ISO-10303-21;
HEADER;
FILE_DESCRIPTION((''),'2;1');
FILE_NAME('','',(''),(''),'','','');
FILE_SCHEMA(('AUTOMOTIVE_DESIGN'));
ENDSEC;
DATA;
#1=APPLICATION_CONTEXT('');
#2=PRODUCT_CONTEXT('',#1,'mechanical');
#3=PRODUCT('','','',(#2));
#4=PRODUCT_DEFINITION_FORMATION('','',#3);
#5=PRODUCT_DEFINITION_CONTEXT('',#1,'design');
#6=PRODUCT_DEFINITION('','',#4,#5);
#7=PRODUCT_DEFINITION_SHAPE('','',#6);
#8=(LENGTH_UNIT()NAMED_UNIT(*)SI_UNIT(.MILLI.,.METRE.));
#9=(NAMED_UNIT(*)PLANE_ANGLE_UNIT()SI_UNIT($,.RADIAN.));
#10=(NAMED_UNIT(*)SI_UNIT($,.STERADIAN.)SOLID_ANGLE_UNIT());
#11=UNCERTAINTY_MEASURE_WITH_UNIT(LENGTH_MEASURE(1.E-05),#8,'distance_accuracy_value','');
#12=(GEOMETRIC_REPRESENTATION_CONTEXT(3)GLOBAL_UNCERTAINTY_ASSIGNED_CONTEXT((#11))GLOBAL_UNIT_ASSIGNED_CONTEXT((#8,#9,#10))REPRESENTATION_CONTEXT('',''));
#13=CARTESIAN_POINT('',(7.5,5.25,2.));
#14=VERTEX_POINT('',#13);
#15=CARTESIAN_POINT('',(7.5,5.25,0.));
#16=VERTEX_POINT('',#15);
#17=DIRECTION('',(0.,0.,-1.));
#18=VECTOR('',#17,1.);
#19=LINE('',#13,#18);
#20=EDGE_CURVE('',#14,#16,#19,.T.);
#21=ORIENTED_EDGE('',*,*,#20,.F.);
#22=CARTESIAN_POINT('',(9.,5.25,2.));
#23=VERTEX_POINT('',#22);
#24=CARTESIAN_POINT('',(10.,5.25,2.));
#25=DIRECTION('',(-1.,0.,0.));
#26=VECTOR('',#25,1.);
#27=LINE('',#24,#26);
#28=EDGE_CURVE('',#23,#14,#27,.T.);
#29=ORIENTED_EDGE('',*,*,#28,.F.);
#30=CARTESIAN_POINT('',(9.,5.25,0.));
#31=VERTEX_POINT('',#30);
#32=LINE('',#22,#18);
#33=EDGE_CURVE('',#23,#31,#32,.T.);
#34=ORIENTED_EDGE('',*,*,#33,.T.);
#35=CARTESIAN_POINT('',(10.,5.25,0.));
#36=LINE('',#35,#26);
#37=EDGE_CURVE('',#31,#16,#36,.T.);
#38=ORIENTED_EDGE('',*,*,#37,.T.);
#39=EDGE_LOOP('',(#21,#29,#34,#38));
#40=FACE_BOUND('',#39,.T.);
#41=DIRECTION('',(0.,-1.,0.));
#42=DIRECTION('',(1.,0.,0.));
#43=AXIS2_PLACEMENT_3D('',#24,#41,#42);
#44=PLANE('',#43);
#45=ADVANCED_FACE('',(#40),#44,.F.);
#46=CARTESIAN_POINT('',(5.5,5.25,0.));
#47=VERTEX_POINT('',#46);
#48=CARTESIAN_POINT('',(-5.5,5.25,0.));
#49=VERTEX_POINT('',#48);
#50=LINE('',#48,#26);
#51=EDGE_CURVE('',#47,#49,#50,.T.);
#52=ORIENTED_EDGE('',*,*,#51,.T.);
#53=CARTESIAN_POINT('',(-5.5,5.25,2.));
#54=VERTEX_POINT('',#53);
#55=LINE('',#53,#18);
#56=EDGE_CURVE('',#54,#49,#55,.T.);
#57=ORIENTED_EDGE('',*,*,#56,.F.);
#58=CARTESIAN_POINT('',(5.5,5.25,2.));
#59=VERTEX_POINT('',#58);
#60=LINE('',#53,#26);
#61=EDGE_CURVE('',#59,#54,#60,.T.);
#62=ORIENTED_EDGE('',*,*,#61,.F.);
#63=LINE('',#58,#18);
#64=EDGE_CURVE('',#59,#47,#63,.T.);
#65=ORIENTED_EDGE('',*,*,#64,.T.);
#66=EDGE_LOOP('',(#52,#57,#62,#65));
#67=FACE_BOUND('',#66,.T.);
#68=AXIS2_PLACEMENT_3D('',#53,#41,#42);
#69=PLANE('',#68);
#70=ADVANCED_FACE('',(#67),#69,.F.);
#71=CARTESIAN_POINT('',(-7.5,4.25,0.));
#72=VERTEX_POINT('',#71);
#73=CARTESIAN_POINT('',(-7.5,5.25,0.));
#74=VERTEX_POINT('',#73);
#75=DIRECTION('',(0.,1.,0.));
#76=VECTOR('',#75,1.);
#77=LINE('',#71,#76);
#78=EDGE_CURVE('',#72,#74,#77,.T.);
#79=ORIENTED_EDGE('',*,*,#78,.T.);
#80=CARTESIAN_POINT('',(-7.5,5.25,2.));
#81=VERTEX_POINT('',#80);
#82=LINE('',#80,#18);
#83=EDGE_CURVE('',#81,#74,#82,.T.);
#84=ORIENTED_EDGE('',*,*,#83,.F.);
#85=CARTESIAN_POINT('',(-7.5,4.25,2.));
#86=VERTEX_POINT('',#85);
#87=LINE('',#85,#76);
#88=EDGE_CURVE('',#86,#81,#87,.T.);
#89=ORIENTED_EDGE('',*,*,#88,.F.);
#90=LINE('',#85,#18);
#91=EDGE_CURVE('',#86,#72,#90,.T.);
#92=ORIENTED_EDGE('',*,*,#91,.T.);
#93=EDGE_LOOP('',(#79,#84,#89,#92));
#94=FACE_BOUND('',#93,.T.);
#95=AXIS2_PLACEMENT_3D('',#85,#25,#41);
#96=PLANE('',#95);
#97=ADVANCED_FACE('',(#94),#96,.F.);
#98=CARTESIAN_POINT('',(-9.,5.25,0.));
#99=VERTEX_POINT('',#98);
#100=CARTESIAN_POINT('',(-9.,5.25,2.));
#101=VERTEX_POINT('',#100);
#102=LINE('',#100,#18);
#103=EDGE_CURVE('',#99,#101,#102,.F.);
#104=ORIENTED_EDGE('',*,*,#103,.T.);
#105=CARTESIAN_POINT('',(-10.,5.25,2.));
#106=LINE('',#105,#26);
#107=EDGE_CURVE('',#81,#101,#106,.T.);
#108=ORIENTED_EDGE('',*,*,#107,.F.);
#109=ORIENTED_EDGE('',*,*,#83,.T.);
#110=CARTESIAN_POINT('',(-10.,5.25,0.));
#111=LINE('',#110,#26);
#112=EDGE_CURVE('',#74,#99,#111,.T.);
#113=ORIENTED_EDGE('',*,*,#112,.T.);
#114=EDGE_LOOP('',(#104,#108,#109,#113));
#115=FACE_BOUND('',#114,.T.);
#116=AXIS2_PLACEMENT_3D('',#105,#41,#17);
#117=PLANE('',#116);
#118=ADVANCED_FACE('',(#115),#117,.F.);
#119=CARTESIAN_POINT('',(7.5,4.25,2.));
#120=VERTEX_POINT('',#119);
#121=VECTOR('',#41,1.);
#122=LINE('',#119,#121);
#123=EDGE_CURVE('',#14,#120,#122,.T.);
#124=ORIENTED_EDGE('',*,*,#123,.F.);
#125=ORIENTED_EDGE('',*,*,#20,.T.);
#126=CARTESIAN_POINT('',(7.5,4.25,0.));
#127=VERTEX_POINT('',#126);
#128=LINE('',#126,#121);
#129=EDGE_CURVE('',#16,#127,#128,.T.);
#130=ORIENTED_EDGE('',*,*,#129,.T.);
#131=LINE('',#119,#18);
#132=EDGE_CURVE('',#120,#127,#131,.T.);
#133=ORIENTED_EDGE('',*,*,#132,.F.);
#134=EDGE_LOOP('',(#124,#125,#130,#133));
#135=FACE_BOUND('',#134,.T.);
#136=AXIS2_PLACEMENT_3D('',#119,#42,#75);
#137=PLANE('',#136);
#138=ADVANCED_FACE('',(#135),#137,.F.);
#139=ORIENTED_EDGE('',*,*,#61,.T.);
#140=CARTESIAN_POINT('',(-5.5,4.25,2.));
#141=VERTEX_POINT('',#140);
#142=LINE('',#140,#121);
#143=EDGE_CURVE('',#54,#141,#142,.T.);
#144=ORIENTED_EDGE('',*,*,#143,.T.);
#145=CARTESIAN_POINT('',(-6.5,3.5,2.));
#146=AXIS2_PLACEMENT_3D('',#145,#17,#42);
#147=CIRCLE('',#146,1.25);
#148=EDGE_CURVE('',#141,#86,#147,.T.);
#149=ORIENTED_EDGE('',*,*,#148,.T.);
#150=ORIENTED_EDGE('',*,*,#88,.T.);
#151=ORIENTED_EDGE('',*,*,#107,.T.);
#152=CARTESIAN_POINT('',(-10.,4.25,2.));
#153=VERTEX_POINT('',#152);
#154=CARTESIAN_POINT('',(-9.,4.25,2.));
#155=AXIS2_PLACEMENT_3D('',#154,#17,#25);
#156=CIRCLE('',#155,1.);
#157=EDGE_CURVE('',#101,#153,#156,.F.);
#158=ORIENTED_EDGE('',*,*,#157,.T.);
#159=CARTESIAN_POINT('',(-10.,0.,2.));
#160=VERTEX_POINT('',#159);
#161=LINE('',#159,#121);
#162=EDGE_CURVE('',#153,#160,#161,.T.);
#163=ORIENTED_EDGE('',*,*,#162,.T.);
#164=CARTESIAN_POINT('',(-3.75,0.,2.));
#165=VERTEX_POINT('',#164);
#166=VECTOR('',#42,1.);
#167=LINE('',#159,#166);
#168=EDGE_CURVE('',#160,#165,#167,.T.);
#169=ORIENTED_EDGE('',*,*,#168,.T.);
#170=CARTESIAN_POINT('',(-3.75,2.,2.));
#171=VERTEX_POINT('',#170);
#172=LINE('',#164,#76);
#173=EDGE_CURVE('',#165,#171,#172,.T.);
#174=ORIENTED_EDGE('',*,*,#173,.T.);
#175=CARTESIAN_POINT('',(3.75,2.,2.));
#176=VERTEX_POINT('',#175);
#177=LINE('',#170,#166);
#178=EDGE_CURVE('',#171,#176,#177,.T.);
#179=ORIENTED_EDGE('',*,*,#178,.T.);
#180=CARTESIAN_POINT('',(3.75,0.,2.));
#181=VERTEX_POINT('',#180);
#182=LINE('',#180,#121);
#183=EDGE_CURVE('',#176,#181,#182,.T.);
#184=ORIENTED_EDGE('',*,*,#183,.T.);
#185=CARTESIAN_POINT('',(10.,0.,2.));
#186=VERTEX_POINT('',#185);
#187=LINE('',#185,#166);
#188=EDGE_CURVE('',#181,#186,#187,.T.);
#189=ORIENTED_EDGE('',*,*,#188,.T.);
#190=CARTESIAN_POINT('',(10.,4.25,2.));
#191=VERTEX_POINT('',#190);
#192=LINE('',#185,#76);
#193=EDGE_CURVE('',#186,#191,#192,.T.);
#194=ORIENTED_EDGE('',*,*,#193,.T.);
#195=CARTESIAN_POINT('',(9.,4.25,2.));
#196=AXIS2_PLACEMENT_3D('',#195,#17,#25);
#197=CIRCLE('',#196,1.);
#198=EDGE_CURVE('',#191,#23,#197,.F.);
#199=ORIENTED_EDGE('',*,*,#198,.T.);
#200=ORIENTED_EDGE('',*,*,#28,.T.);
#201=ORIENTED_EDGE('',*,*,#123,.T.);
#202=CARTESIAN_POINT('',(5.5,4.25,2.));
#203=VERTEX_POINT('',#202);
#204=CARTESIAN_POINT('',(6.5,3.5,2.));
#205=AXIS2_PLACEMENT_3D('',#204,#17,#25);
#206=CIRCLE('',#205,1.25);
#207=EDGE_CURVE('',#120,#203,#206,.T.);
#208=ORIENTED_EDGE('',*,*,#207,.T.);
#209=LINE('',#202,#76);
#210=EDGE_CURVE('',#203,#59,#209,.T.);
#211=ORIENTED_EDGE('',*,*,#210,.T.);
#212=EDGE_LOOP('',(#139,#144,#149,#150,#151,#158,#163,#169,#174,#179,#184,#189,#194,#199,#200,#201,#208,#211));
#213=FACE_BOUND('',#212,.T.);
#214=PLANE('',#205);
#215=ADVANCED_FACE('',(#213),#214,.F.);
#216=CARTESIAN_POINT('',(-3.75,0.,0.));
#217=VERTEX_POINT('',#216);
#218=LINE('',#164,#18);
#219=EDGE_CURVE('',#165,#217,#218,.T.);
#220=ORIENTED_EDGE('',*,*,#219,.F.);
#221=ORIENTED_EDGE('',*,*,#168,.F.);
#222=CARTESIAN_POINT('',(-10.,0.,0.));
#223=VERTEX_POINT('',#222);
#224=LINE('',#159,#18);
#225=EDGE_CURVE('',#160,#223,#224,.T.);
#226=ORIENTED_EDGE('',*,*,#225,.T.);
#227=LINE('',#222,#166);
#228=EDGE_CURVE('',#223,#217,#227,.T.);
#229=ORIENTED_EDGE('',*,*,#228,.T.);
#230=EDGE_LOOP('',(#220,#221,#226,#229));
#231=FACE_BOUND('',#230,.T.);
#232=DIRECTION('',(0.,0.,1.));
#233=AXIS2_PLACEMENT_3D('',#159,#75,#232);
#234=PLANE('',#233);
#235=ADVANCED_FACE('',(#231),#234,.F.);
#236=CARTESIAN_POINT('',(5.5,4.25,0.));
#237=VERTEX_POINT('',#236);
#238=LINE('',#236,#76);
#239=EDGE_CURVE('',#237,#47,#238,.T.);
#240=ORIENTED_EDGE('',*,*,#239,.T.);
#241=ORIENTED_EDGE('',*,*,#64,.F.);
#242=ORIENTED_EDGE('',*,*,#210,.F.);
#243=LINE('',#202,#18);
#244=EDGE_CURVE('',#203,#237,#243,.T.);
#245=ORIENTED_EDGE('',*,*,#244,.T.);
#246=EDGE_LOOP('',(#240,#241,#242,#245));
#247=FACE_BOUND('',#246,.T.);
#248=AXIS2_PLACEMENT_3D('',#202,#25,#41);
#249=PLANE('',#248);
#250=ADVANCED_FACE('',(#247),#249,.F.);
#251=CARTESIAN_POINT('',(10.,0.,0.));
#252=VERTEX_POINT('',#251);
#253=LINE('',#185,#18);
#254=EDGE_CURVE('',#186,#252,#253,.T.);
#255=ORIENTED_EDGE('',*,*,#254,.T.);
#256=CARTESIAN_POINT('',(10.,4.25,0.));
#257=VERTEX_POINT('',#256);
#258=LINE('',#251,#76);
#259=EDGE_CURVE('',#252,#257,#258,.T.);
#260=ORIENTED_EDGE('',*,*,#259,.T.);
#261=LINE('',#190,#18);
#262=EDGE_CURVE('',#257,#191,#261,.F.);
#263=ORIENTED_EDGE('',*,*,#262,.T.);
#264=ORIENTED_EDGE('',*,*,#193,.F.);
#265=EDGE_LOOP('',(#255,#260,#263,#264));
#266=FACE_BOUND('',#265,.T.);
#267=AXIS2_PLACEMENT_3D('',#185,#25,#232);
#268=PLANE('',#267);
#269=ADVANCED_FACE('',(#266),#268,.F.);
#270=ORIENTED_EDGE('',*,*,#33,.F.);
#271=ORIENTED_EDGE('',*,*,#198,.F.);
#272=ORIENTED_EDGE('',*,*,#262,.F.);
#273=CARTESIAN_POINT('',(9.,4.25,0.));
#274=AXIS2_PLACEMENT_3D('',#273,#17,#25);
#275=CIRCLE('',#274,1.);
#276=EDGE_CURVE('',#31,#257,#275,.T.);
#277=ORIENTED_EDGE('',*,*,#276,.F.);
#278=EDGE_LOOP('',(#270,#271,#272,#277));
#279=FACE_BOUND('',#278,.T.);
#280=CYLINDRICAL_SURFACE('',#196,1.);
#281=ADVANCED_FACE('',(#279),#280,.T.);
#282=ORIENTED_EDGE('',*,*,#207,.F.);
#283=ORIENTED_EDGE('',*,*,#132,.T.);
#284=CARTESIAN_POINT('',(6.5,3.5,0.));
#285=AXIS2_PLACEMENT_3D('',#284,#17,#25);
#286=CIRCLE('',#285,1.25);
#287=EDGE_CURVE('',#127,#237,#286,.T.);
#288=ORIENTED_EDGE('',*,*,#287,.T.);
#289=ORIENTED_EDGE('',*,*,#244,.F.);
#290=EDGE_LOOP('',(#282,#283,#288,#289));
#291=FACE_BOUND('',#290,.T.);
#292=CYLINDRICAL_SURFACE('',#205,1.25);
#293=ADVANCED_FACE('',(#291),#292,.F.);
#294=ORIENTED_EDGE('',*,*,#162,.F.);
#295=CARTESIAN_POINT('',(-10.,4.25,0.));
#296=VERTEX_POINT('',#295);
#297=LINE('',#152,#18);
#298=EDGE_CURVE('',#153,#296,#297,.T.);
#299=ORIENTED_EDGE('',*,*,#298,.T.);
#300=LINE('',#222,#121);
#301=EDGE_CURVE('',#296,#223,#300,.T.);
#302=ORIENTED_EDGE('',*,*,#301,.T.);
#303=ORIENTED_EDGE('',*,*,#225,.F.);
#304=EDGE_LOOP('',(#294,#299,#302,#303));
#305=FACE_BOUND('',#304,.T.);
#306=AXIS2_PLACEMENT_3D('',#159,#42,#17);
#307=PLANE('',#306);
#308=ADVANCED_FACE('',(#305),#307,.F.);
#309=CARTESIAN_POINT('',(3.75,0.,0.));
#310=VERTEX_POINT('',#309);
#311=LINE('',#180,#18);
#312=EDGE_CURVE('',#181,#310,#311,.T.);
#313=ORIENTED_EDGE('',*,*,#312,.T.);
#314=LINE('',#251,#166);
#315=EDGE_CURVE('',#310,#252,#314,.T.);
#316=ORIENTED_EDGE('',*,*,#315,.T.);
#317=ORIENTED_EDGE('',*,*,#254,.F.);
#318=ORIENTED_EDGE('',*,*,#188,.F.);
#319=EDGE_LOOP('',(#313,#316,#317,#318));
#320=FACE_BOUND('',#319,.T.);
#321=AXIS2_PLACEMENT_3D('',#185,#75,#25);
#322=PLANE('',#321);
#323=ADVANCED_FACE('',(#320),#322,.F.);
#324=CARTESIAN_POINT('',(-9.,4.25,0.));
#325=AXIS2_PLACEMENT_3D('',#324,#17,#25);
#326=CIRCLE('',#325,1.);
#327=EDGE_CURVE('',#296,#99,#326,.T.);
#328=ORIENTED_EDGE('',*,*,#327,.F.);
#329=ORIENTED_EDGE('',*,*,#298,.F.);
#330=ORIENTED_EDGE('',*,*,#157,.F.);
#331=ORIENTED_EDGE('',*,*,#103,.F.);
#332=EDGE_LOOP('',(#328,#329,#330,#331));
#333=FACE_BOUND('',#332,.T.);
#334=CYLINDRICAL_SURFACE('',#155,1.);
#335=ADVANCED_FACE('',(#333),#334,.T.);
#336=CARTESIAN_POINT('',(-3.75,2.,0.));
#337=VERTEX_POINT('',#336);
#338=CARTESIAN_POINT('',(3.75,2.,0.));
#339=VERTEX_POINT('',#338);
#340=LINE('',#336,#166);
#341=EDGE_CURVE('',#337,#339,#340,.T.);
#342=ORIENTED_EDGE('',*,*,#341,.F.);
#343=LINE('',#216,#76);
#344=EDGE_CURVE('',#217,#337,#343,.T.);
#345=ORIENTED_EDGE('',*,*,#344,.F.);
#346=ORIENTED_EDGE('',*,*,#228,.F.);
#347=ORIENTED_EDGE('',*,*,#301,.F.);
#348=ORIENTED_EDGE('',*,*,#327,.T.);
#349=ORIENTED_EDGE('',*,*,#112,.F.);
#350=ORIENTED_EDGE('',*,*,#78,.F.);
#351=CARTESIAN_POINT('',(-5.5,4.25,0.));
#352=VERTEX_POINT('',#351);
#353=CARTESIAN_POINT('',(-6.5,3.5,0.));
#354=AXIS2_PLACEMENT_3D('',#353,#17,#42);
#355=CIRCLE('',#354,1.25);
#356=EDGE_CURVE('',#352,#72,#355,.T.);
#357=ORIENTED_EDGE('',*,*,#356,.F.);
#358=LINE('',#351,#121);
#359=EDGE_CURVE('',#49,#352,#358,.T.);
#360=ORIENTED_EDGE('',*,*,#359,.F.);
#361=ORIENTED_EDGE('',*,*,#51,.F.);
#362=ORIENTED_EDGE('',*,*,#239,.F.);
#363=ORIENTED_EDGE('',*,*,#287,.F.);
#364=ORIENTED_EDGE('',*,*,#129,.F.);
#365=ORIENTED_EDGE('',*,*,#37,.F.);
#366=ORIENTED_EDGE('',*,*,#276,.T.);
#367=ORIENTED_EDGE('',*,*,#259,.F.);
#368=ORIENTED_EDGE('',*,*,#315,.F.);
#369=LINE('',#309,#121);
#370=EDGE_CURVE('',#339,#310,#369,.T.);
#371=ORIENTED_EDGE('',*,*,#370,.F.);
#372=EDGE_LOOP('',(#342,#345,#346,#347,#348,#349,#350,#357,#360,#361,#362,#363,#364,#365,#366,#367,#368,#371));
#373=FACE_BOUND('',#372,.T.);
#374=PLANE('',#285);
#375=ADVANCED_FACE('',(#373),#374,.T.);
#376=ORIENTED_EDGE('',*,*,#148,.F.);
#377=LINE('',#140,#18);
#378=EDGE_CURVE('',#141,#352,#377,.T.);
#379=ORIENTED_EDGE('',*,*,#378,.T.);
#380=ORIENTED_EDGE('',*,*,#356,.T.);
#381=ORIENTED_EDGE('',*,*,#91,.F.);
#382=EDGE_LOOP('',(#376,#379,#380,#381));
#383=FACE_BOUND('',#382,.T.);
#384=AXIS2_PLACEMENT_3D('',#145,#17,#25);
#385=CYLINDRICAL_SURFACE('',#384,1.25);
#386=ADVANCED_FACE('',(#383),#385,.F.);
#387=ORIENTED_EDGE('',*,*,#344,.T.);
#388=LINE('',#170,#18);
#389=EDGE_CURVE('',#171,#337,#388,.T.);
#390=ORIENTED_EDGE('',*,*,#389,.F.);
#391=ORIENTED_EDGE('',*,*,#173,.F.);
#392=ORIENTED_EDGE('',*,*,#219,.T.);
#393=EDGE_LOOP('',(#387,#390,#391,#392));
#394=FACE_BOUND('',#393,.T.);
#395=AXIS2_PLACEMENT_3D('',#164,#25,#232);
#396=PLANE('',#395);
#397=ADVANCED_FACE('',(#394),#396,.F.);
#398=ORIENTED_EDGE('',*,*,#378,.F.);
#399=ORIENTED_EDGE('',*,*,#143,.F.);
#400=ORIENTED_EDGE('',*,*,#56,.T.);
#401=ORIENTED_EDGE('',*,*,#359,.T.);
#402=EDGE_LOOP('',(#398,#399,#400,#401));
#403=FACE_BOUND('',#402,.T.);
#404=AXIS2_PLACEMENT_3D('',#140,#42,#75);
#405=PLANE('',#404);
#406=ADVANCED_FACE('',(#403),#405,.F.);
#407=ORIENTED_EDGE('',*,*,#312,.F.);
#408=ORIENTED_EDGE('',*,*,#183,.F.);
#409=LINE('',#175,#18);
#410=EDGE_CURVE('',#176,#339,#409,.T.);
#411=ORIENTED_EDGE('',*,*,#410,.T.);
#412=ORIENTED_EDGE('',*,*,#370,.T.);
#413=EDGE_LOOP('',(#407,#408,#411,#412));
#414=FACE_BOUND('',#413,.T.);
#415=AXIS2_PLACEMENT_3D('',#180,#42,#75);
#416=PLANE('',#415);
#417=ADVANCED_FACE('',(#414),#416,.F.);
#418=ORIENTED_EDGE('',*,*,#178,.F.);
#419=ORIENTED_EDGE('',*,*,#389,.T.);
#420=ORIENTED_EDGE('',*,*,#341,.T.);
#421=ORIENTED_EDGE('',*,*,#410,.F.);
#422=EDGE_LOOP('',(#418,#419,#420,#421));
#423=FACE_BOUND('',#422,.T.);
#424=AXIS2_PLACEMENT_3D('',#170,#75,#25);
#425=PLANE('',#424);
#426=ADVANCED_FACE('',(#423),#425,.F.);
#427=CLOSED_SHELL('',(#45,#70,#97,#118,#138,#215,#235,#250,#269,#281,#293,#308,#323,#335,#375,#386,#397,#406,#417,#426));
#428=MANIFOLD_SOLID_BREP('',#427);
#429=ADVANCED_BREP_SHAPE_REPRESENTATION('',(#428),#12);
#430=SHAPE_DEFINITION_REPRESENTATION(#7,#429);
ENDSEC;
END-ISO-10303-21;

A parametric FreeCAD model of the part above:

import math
import FreeCAD as App
import Part
import Sketcher
from FreeCAD import Vector
Q = App.Units.Quantity


def edges_at(feature, points):
    """Names of the edges that pass closest to the given points."""
    edges = feature.Shape.Edges
    near = lambda p: min(range(len(edges)), key=lambda i: edges[i].distToShape(Part.Vertex(*p))[0])
    return sorted({f"Edge{near(p) + 1}" for p in points})

doc = App.newDocument("Part")
body = doc.addObject("PartDesign::Body", "Body")

sketch1 = body.newObject("Sketcher::SketchObject", "Sketch")
sketch1.AttachmentSupport = (doc.getObject("XY_Plane"), [""])
sketch1.MapMode = "FlatFace"
sketch1.addGeometry(Part.LineSegment(Vector(-10, 5.2, 0), Vector(-10, 0, 0)), False)
sketch1.addGeometry(Part.LineSegment(Vector(-10, 0, 0), Vector(-3.8, 0, 0)), False)
sketch1.addGeometry(Part.LineSegment(Vector(-3.8, 0, 0), Vector(-3.8, 2, 0)), False)
sketch1.addGeometry(Part.LineSegment(Vector(-3.8, 2, 0), Vector(3.8, 2, 0)), False)
sketch1.addGeometry(Part.LineSegment(Vector(3.8, 2, 0), Vector(3.8, 0, 0)), False)
sketch1.addGeometry(Part.LineSegment(Vector(3.8, 0, 0), Vector(10, 0, 0)), False)
sketch1.addGeometry(Part.LineSegment(Vector(10, 0, 0), Vector(10, 5.2, 0)), False)
sketch1.addGeometry(Part.LineSegment(Vector(10, 5.2, 0), Vector(7.5, 5.2, 0)), False)
sketch1.addGeometry(Part.LineSegment(Vector(7.5, 5.2, 0), Vector(7.5, 4.2, 0)), False)
sketch1.addGeometry(Part.ArcOfCircle(Part.Circle(Vector(6.5, 3.5, 0), Vector(0, 0, 1), 1.2), math.radians(143), math.radians(397)), False)
sketch1.addGeometry(Part.LineSegment(Vector(5.5, 4.2, 0), Vector(5.5, 5.2, 0)), False)
sketch1.addGeometry(Part.LineSegment(Vector(5.5, 5.2, 0), Vector(-5.5, 5.2, 0)), False)
sketch1.addGeometry(Part.LineSegment(Vector(-5.5, 5.2, 0), Vector(-5.5, 4.2, 0)), False)
sketch1.addGeometry(Part.ArcOfCircle(Part.Circle(Vector(-6.5, 3.5, 0), Vector(0, 0, 1), 1.2), math.radians(143), math.radians(397)), False)
sketch1.addGeometry(Part.LineSegment(Vector(-7.5, 4.2, 0), Vector(-7.5, 5.2, 0)), False)
sketch1.addGeometry(Part.LineSegment(Vector(-7.5, 5.2, 0), Vector(-10, 5.2, 0)), False)
sketch1.addConstraint(Sketcher.Constraint("Coincident", 0, 2, 1, 1))
sketch1.addConstraint(Sketcher.Constraint("Coincident", 1, 2, 2, 1))
sketch1.addConstraint(Sketcher.Constraint("Coincident", 2, 2, 3, 1))
sketch1.addConstraint(Sketcher.Constraint("Coincident", 3, 2, 4, 1))
sketch1.addConstraint(Sketcher.Constraint("Coincident", 4, 2, 5, 1))
sketch1.addConstraint(Sketcher.Constraint("Coincident", 5, 2, 6, 1))
sketch1.addConstraint(Sketcher.Constraint("Coincident", 6, 2, 7, 1))
sketch1.addConstraint(Sketcher.Constraint("Coincident", 7, 2, 8, 1))
sketch1.addConstraint(Sketcher.Constraint("Coincident", 8, 2, 9, 2))
sketch1.addConstraint(Sketcher.Constraint("Coincident", 9, 1, 10, 1))
sketch1.addConstraint(Sketcher.Constraint("Coincident", 10, 2, 11, 1))
sketch1.addConstraint(Sketcher.Constraint("Coincident", 11, 2, 12, 1))
sketch1.addConstraint(Sketcher.Constraint("Coincident", 12, 2, 13, 2))
sketch1.addConstraint(Sketcher.Constraint("Coincident", 13, 1, 14, 1))
sketch1.addConstraint(Sketcher.Constraint("Coincident", 14, 2, 15, 1))
sketch1.addConstraint(Sketcher.Constraint("Coincident", 15, 2, 0, 1))
sketch1.addConstraint(Sketcher.Constraint("Vertical", 0))
sketch1.addConstraint(Sketcher.Constraint("Horizontal", 1))
sketch1.addConstraint(Sketcher.Constraint("Vertical", 2))
sketch1.addConstraint(Sketcher.Constraint("Horizontal", 3))
sketch1.addConstraint(Sketcher.Constraint("Vertical", 4))
sketch1.addConstraint(Sketcher.Constraint("Horizontal", 5))
sketch1.addConstraint(Sketcher.Constraint("Vertical", 6))
sketch1.addConstraint(Sketcher.Constraint("Horizontal", 7))
sketch1.addConstraint(Sketcher.Constraint("Vertical", 8))
sketch1.addConstraint(Sketcher.Constraint("Vertical", 10))
sketch1.addConstraint(Sketcher.Constraint("Horizontal", 11))
sketch1.addConstraint(Sketcher.Constraint("Vertical", 12))
sketch1.addConstraint(Sketcher.Constraint("Vertical", 14))
sketch1.addConstraint(Sketcher.Constraint("Horizontal", 15))
sketch1.addConstraint(Sketcher.Constraint("Equal", 9, 13))
sketch1.addConstraint(Sketcher.Constraint("Symmetric", 1, 2, 4, 2, -1, 1))
sketch1.addConstraint(Sketcher.Constraint("Symmetric", 9, 3, 13, 3, -2))
sketch1.addConstraint(Sketcher.Constraint("Symmetric", 0, 2, 5, 2, -2))
sketch1.addConstraint(Sketcher.Constraint("Symmetric", 7, 2, 14, 2, -2))
sketch1.addConstraint(Sketcher.Constraint("Horizontal", 8, 2, 9, 1))
sketch1.addConstraint(Sketcher.Constraint("Horizontal", 7, 2, 10, 2))
sketch1.addConstraint(Sketcher.Constraint("Horizontal", 9, 1, 12, 2))
sketch1.addConstraint(Sketcher.Constraint("DistanceX", 11, 2, 11, 1, Q("11 mm")))
sketch1.addConstraint(Sketcher.Constraint("DistanceY", 2, 1, 2, 2, Q("2 mm")))
sketch1.addConstraint(Sketcher.Constraint("DistanceY", 8, 2, 8, 1, Q("1 mm")))
sketch1.addConstraint(Sketcher.Constraint("Radius", 9, Q("1.25 mm")))
sketch1.addConstraint(Sketcher.Constraint("DistanceX", 3, 1, 3, 2, Q("7.5 mm")))
sketch1.addConstraint(Sketcher.Constraint("DistanceX", 7, 2, 7, 1, Q("2.5 mm")))
sketch1.addConstraint(Sketcher.Constraint("DistanceX", 0, 2, -1, 1, Q("10 mm")))
sketch1.addConstraint(Sketcher.Constraint("DistanceY", 0, 2, 0, 1, Q("5.25 mm")))
pad1 = body.newObject("PartDesign::Pad", "Pad")
pad1.Profile = sketch1
pad1.Length = 2
doc.recompute()

fillet = body.newObject("PartDesign::Fillet", "Fillet")
fillet.Base = (pad1, edges_at(pad1, [(-10, 5.25, 1), (10, 5.25, 1)]))
fillet.Radius = 1

doc.recompute()
